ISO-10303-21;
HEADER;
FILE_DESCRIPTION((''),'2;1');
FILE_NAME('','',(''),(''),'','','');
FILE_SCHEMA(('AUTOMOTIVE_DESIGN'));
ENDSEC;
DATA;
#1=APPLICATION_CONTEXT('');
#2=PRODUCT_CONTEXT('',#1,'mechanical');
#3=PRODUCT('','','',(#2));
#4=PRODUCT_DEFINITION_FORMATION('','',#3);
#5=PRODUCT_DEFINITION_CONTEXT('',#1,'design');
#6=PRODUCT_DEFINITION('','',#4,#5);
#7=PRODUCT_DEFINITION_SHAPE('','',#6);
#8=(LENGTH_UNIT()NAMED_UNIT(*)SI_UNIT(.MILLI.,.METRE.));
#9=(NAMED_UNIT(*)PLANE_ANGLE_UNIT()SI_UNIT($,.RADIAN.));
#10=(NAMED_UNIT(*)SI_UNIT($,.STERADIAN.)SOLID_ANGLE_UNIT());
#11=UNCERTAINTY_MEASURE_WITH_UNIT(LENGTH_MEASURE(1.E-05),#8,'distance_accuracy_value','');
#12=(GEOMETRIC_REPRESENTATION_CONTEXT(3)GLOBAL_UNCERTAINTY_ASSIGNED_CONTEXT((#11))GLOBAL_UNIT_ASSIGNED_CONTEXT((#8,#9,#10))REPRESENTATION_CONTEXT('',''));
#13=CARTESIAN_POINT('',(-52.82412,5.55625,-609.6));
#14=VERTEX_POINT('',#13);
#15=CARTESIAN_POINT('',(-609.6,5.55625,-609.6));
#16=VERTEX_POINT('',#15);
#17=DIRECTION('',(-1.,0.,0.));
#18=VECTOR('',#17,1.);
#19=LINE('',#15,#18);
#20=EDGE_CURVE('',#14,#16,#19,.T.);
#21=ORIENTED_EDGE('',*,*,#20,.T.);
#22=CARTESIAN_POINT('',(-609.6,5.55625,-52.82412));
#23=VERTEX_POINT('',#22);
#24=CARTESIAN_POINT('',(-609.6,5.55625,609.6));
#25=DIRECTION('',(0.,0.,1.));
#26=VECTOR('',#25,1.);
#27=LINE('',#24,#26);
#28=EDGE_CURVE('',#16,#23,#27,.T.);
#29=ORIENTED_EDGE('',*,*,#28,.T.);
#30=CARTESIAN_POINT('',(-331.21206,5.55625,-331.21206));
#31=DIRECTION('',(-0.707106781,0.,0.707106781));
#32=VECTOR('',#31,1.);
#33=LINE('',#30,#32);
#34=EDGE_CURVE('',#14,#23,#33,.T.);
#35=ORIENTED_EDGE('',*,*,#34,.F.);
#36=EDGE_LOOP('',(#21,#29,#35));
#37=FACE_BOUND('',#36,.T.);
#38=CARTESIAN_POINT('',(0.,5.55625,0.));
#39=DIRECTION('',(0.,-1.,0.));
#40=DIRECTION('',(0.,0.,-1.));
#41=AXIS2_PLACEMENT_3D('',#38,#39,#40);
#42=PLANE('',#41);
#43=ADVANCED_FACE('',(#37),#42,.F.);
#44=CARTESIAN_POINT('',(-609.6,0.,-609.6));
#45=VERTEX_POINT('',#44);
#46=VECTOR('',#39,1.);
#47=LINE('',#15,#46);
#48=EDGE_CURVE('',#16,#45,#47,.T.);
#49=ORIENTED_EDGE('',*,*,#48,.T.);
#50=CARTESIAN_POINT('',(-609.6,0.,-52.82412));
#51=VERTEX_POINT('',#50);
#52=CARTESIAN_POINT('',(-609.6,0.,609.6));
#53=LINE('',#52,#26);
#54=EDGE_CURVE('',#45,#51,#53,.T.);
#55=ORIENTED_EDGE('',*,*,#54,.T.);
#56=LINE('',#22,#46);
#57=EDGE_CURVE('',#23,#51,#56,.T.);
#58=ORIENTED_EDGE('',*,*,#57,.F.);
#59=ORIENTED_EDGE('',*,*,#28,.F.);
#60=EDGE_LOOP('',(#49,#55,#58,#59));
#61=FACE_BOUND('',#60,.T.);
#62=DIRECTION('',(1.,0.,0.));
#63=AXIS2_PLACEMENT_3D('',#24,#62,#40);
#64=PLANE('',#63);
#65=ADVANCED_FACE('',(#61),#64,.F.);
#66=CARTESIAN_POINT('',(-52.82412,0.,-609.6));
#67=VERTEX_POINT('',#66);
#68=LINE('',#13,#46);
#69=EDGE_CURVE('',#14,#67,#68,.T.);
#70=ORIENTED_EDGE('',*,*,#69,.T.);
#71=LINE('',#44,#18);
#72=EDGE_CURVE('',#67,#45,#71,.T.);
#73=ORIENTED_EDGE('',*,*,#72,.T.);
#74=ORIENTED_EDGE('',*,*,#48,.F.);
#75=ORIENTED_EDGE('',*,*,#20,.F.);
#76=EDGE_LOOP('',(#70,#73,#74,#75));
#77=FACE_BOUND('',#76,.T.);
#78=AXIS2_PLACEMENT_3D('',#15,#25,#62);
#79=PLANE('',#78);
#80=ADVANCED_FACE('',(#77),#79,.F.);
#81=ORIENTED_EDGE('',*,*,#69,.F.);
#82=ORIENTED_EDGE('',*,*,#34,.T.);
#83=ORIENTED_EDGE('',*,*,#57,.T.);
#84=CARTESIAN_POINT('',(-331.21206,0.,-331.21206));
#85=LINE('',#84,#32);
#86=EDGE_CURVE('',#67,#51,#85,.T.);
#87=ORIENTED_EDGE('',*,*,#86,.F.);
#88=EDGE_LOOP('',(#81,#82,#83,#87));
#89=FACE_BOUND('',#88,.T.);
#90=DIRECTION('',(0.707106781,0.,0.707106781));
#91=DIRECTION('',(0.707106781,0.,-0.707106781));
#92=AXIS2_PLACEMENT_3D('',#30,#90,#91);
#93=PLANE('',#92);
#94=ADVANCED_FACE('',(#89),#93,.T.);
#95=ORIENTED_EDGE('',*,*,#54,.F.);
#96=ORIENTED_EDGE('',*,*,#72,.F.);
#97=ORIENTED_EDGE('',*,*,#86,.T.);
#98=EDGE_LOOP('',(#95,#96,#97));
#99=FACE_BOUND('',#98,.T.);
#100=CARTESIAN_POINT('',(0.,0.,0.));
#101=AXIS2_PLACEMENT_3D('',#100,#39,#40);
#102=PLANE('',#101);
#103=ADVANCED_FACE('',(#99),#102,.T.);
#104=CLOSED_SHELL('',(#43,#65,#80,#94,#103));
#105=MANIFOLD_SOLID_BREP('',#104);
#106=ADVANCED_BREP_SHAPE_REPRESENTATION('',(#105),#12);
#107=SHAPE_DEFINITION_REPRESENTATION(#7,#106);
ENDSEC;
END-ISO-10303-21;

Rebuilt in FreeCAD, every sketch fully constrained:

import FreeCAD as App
import Part
import Sketcher

V = App.Vector
Q = App.Units.Quantity

doc = App.newDocument("Part")
body = doc.addObject("PartDesign::Body", "Body")

sketch1 = body.newObject("Sketcher::SketchObject", "Sketch")
sketch1.AttachmentSupport = (doc.getObject("XZ_Plane"), [""])
sketch1.MapMode = "FlatFace"
sketch1.addGeometry(Part.LineSegment(V(-609.6, -609.6, 0), V(-609.6, 609.6, 0)), False)
sketch1.addGeometry(Part.LineSegment(V(-609.6, 609.6, 0), V(609.6, 609.6, 0)), False)
sketch1.addGeometry(Part.LineSegment(V(609.6, 609.6, 0), V(609.6, -609.6, 0)), False)
sketch1.addGeometry(Part.LineSegment(V(609.6, -609.6, 0), V(-609.6, -609.6, 0)), False)
sketch1.addConstraint(Sketcher.Constraint("Coincident", 0, 2, 1, 1))
sketch1.addConstraint(Sketcher.Constraint("Coincident", 1, 2, 2, 1))
sketch1.addConstraint(Sketcher.Constraint("Coincident", 2, 2, 3, 1))
sketch1.addConstraint(Sketcher.Constraint("Coincident", 3, 2, 0, 1))
sketch1.addConstraint(Sketcher.Constraint("Vertical", 0))
sketch1.addConstraint(Sketcher.Constraint("Horizontal", 1))
sketch1.addConstraint(Sketcher.Constraint("Vertical", 2))
sketch1.addConstraint(Sketcher.Constraint("Horizontal", 3))
sketch1.addConstraint(Sketcher.Constraint("Symmetric", 0, 2, 2, 2, -1, 1))
sketch1.addConstraint(Sketcher.Constraint("Equal", 3, 0))
sketch1.addConstraint(Sketcher.Constraint("DistanceX", 1, 1, 1, 2, Q("48 in")))
pad1 = body.newObject("PartDesign::Pad", "Pad")
pad1.Profile = sketch1
pad1.Length = Q("0.21875 in")
pad1.Reversed = True

sketch2 = body.newObject("Sketcher::SketchObject", "Sketch001")
sketch2.AttachmentSupport = (doc.getObject("XZ_Plane"), [""])
sketch2.MapMode = "FlatFace"
sketch2.addGeometry(Part.LineSegment(V(-609.6, -52.82412, 0), V(-52.82412, -609.6, 0)), False)
sketch2.addGeometry(Part.LineSegment(V(-52.82412, -609.6, 0), V(609.6, -609.6, 0)), False)
sketch2.addGeometry(Part.LineSegment(V(609.6, -609.6, 0), V(609.6, 609.6, 0)), False)
sketch2.addGeometry(Part.LineSegment(V(609.6, 609.6, 0), V(-609.6, 609.6, 0)), False)
sketch2.addGeometry(Part.LineSegment(V(-609.6, 609.6, 0), V(-609.6, -52.82412, 0)), False)
sketch2.addConstraint(Sketcher.Constraint("Coincident", 0, 2, 1, 1))
sketch2.addConstraint(Sketcher.Constraint("Coincident", 1, 2, 2, 1))
sketch2.addConstraint(Sketcher.Constraint("Coincident", 2, 2, 3, 1))
sketch2.addConstraint(Sketcher.Constraint("Coincident", 3, 2, 4, 1))
sketch2.addConstraint(Sketcher.Constraint("Coincident", 4, 2, 0, 1))
sketch2.addConstraint(Sketcher.Constraint("Horizontal", 1))
sketch2.addConstraint(Sketcher.Constraint("Vertical", 2))
sketch2.addConstraint(Sketcher.Constraint("Horizontal", 3))
sketch2.addConstraint(Sketcher.Constraint("Vertical", 4))
sketch2.addConstraint(Sketcher.Constraint("Symmetric", 1, 2, 3, 2, -1, 1))
sketch2.addConstraint(Sketcher.Constraint("Equal", 3, 2))
sketch2.addConstraint(Sketcher.Constraint("Equal", 1, 4))
sketch2.addConstraint(Sketcher.Constraint("DistanceX", 3, 2, 3, 1, Q("48 in")))
sketch2.addConstraint(Sketcher.Constraint("Distance", 0, Q("31 in")))
pocket1 = body.newObject("PartDesign::Pocket", "Pocket")
pocket1.Profile = sketch2
pocket1.Type = "ThroughAll"

doc.recompute()
